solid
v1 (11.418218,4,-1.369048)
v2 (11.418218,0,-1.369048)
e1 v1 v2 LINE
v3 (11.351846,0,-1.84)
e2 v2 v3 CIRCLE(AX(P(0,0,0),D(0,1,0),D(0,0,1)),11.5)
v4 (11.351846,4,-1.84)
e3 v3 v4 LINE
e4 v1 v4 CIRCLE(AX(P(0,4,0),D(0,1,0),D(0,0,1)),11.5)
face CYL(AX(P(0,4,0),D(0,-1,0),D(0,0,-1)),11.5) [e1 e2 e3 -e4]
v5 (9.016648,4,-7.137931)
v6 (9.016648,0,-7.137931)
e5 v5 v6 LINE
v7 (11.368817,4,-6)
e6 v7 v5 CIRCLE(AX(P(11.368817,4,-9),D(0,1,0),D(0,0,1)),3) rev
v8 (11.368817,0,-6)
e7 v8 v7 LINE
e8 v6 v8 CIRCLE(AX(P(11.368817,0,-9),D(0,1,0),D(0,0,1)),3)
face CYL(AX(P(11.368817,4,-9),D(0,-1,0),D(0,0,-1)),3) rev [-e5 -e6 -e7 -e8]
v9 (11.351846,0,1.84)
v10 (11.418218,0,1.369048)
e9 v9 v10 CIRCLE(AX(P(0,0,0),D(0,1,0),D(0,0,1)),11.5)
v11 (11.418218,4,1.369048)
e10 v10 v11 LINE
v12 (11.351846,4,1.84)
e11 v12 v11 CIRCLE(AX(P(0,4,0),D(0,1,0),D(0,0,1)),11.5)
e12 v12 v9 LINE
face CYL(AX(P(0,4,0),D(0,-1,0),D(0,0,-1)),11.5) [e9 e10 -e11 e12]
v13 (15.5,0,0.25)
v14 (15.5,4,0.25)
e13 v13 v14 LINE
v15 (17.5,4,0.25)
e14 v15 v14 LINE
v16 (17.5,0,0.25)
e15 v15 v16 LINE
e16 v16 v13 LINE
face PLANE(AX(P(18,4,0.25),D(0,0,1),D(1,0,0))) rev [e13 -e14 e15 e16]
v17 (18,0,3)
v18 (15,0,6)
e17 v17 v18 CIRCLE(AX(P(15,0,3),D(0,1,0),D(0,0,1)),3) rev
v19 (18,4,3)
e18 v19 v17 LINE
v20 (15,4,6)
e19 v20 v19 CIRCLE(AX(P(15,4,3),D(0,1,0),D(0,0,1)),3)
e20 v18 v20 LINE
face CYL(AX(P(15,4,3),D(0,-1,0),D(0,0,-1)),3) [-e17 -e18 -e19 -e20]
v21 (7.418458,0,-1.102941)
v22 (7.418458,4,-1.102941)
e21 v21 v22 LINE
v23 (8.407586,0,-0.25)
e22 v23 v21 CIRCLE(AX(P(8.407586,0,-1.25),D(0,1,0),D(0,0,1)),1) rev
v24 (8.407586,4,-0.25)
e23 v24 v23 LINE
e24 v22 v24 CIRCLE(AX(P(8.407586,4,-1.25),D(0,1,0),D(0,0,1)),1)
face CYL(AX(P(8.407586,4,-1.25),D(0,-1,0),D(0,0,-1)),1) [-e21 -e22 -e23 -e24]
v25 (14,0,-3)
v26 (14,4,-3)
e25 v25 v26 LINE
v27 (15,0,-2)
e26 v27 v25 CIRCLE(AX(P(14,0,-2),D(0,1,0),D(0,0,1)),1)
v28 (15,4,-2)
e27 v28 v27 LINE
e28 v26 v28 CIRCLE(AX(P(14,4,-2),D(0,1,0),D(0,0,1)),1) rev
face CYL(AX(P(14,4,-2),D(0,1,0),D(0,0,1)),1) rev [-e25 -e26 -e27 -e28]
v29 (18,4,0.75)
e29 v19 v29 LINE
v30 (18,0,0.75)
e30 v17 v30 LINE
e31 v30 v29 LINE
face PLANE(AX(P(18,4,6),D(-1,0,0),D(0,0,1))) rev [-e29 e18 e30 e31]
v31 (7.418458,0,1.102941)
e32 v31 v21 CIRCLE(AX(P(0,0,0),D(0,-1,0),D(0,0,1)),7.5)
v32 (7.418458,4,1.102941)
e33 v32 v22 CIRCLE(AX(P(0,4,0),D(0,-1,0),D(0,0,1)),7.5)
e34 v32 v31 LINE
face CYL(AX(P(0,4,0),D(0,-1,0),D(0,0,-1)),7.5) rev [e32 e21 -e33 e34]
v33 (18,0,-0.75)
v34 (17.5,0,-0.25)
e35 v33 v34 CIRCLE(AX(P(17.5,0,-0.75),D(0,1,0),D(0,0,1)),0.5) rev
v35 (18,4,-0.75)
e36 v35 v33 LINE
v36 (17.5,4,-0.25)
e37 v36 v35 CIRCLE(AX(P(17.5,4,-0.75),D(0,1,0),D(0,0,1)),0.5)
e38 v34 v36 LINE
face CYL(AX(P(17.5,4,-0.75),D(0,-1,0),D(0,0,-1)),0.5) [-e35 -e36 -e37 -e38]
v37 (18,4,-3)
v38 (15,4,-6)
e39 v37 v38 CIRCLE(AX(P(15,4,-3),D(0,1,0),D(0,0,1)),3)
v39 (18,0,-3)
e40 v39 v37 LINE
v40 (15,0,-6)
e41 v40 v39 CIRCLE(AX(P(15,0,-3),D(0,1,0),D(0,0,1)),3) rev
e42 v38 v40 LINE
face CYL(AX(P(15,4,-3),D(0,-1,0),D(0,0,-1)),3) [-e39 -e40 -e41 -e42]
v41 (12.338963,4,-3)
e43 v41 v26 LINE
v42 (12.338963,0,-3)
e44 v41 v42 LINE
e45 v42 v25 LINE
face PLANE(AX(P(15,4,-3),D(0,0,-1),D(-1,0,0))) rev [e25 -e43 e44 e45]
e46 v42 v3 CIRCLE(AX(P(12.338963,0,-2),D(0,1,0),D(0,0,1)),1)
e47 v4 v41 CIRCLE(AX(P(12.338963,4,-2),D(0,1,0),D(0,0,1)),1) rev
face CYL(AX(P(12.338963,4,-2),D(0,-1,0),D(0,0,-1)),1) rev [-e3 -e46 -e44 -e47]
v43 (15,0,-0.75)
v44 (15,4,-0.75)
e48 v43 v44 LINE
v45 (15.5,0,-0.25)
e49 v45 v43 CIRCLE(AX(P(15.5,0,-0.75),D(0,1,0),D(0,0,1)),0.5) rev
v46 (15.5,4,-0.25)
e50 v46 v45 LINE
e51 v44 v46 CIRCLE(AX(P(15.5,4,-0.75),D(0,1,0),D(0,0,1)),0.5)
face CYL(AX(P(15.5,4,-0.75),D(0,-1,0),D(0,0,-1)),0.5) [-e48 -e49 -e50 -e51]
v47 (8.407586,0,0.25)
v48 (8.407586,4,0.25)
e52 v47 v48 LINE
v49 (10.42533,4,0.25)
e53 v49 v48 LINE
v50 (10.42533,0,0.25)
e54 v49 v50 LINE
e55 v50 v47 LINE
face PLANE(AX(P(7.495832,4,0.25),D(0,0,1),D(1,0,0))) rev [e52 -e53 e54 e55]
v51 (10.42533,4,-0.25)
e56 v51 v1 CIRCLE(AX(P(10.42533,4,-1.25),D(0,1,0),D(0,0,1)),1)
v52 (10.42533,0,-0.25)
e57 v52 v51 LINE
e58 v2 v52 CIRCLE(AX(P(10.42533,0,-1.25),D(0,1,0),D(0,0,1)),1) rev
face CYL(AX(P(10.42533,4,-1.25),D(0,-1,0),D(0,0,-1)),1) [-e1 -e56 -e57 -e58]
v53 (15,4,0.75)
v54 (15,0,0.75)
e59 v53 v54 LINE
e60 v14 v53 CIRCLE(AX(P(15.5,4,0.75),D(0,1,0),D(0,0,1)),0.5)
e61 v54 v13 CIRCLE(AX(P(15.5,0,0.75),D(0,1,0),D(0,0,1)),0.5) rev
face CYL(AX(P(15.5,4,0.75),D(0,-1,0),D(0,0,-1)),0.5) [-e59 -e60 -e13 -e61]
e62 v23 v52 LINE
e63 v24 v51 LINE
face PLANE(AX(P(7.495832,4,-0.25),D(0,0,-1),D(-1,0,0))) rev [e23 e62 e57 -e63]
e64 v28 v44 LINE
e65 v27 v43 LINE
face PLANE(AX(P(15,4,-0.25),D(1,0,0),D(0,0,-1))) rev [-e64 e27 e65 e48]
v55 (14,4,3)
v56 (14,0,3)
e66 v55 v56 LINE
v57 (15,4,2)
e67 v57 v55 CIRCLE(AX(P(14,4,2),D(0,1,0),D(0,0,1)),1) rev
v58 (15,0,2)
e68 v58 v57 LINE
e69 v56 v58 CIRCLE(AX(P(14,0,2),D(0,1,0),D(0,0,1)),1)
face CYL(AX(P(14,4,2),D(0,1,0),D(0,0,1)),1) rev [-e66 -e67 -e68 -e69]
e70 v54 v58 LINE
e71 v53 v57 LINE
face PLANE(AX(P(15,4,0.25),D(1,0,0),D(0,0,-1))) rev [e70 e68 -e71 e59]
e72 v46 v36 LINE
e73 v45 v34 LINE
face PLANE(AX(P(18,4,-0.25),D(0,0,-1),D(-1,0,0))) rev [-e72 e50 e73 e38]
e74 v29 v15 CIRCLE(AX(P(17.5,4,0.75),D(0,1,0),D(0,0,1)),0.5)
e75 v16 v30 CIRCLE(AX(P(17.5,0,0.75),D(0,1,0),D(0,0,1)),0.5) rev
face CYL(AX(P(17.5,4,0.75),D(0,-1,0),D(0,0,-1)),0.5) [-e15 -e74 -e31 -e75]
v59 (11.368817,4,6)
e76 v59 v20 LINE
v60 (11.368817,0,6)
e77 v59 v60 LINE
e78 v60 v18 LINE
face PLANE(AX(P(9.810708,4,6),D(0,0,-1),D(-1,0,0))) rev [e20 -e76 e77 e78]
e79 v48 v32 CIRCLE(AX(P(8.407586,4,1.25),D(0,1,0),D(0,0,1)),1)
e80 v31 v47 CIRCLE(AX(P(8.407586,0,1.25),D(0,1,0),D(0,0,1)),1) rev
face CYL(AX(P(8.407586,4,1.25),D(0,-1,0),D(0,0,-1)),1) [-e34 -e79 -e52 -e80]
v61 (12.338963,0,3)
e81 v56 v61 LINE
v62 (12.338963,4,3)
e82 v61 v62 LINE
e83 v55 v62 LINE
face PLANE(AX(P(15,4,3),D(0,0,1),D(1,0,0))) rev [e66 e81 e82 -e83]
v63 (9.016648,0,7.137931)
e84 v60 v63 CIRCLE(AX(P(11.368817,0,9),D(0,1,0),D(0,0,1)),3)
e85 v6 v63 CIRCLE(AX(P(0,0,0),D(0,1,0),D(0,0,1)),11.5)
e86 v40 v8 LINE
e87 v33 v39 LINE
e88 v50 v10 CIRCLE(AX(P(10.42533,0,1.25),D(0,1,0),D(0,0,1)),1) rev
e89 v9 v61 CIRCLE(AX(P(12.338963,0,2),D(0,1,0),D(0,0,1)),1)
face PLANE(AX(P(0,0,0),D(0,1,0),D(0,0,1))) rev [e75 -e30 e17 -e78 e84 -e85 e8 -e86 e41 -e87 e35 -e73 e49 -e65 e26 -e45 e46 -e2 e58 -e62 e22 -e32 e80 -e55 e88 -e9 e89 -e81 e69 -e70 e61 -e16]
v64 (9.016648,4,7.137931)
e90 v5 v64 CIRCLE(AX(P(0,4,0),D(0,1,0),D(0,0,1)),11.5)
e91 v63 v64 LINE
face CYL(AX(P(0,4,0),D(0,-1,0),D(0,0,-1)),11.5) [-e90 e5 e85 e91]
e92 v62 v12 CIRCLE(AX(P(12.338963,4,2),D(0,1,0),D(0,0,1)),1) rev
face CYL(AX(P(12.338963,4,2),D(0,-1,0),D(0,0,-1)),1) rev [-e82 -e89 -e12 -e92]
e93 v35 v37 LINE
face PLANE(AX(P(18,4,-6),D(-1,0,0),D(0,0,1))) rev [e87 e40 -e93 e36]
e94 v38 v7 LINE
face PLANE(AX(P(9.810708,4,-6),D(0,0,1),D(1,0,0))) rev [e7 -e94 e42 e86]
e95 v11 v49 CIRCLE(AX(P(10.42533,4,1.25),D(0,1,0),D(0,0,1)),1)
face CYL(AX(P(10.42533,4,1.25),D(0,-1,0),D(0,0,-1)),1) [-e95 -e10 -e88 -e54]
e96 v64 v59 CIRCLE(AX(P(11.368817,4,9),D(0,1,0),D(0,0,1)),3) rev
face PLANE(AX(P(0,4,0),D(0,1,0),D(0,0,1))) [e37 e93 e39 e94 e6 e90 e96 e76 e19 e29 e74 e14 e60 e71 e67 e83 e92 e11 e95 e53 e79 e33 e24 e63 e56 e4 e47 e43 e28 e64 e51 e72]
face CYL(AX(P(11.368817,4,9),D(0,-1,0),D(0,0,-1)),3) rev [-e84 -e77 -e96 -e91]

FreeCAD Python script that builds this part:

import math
import FreeCAD as App
import Part
import Sketcher

V = App.Vector
Q = App.Units.Quantity


def edges_at(feature, points):
    """Names of the edges that pass closest to the given points."""
    edges = feature.Shape.Edges
    near = lambda p: min(range(len(edges)), key=lambda i: edges[i].distToShape(Part.Vertex(*p))[0])
    return sorted({f"Edge{near(p) + 1}" for p in points})

doc = App.newDocument("Part")
params = doc.addObject("Spreadsheet::Sheet", "Params")
for row, (alias, value) in enumerate([
    ("sketch1_radius", "11.5 mm"),
    ("sketch1_radius2", "7.5 mm"),
    ("sketch1_width", "3 mm"),
    ("sketch1_height", "5.75 mm"),
    ("pad1_length", "4 mm"),
    ("fillet_radius", "1 mm"),
    ("fillet2_radius", "1 mm"),
    ("fillet3_radius", "0.5 mm"),
    ("fillet4_radius", "3 mm"),
], start=1):
    params.set(f"A{row}", alias)
    params.set(f"B{row}", "=" + value)
    params.setAlias(f"B{row}", alias)

body = doc.addObject("PartDesign::Body", "Body")

sketch1 = body.newObject("Sketcher::SketchObject", "Sketch")
sketch1.AttachmentSupport = (doc.getObject("XZ_Plane"), [""])
sketch1.MapMode = "FlatFace"
sketch1.addGeometry([
    Part.LineSegment(V(18, -6, 0), V(9.8, -6, 0)),
    Part.ArcOfCircle(Part.Circle(V(0, 0, 0), V(0, 0, 1), 11.5), math.radians(31), math.radians(329)),
    Part.LineSegment(V(9.8, 6, 0), V(18, 6, 0)),
    Part.LineSegment(V(18, 6, 0), V(18, 0.2, 0)),
    Part.LineSegment(V(18, 0.2, 0), V(15, 0.2, 0)),
    Part.LineSegment(V(15, 0.2, 0), V(15, 3, 0)),
    Part.LineSegment(V(15, 3, 0), V(11.1, 3, 0)),
    Part.ArcOfCircle(Part.Circle(V(0, 0, 0), V(0, 0, 1), 11.5), math.radians(1.25), math.radians(15.12)),
    Part.LineSegment(V(11.5, 0.2, 0), V(7.5, 0.2, 0)),
    Part.ArcOfCircle(Part.Circle(V(0, 0, 0), V(0, 0, 1), 7.5), math.radians(2), math.radians(358)),
    Part.LineSegment(V(7.5, -0.2, 0), V(11.5, -0.2, 0)),
    Part.ArcOfCircle(Part.Circle(V(0, 0, 0), V(0, 0, 1), 11.5), math.radians(-15.12), math.radians(-1.25)),
    Part.LineSegment(V(11.1, -3, 0), V(15, -3, 0)),
    Part.LineSegment(V(15, -3, 0), V(15, -0.2, 0)),
    Part.LineSegment(V(15, -0.2, 0), V(18, -0.2, 0)),
    Part.LineSegment(V(18, -0.2, 0), V(18, -6, 0)),
], False)
sketch1.addConstraint([
    Sketcher.Constraint("Coincident", 0, 2, 1, 2),
    Sketcher.Constraint("Coincident", 1, 1, 2, 1),
    Sketcher.Constraint("Coincident", 2, 2, 3, 1),
    Sketcher.Constraint("Coincident", 3, 2, 4, 1),
    Sketcher.Constraint("Coincident", 4, 2, 5, 1),
    Sketcher.Constraint("Coincident", 5, 2, 6, 1),
    Sketcher.Constraint("Coincident", 6, 2, 7, 2),
    Sketcher.Constraint("Coincident", 7, 1, 8, 1),
    Sketcher.Constraint("Coincident", 8, 2, 9, 1),
    Sketcher.Constraint("Coincident", 9, 2, 10, 1),
    Sketcher.Constraint("Coincident", 10, 2, 11, 2),
    Sketcher.Constraint("Coincident", 11, 1, 12, 1),
    Sketcher.Constraint("Coincident", 12, 2, 13, 1),
    Sketcher.Constraint("Coincident", 13, 2, 14, 1),
    Sketcher.Constraint("Coincident", 14, 2, 15, 1),
    Sketcher.Constraint("Coincident", 15, 2, 0, 1),
    Sketcher.Constraint("Horizontal", 0),
    Sketcher.Constraint("Horizontal", 2),
    Sketcher.Constraint("Vertical", 3),
    Sketcher.Constraint("Horizontal", 4),
    Sketcher.Constraint("Vertical", 5),
    Sketcher.Constraint("Horizontal", 6),
    Sketcher.Constraint("Horizontal", 8),
    Sketcher.Constraint("Horizontal", 10),
    Sketcher.Constraint("Horizontal", 12),
    Sketcher.Constraint("Vertical", 13),
    Sketcher.Constraint("Horizontal", 14),
    Sketcher.Constraint("Vertical", 15),
    Sketcher.Constraint("Coincident", 1, 3, -1, 1),
    Sketcher.Constraint("Coincident", 7, 3, -1, 1),
    Sketcher.Constraint("Coincident", 9, 3, -1, 1),
    Sketcher.Constraint("Coincident", 11, 3, -1, 1),
    Sketcher.Constraint("Equal", 1, 7),
    Sketcher.Constraint("Equal", 7, 11),
    Sketcher.Constraint("Symmetric", 5, 2, 12, 2, -1),
    Sketcher.Constraint("Symmetric", 3, 2, 14, 2, -1),
    Sketcher.Constraint("Horizontal", 4, 2, 7, 1),
    Sketcher.Constraint("Horizontal", 10, 2, 13, 2),
    Sketcher.Constraint("Vertical", 0, 2, 1, 1),
    Sketcher.Constraint("Radius", 1, Q("11.5 mm")),
    Sketcher.Constraint("Radius", 9, Q("7.5 mm")),
    Sketcher.Constraint("DistanceX", 4, 2, 4, 1, Q("3 mm")),
    Sketcher.Constraint("DistanceY", 0, 2, -1, 1, Q("6 mm")),
    Sketcher.Constraint("DistanceX", -1, 1, 2, 2, Q("18 mm")),
    Sketcher.Constraint("DistanceY", -1, 1, 5, 2, Q("3 mm")),
    Sketcher.Constraint("DistanceY", 3, 2, 3, 1, Q("5.75 mm")),
])
sketch1.setExpression("Constraints[39]", "Params.sketch1_radius")
sketch1.setExpression("Constraints[40]", "Params.sketch1_radius2")
sketch1.setExpression("Constraints[41]", "Params.sketch1_width")
sketch1.setExpression("Constraints[45]", "Params.sketch1_height")
pad1 = body.newObject("PartDesign::Pad", "Pad")
pad1.Profile = sketch1
pad1.setExpression("Length", "Params.pad1_length")
pad1.Reversed = True
doc.recompute()

fillet = body.newObject("PartDesign::Fillet", "Fillet")
fillet.Base = (pad1, edges_at(pad1, [
    (11.497, 2, -0.25),
    (7.496, 2, -0.25),
    (7.496, 2, 0.25),
    (11.497, 2, 0.25),
]))
fillet.setExpression("Radius", "Params.fillet_radius")
doc.recompute()

fillet2 = body.newObject("PartDesign::Fillet", "Fillet001")
fillet2.Base = (fillet, edges_at(fillet, [
    (15, 2, -3),
    (11.102, 2, -3),
    (11.102, 2, 3),
    (15, 2, 3),
]))
fillet2.setExpression("Radius", "Params.fillet2_radius")
doc.recompute()

fillet3 = body.newObject("PartDesign::Fillet", "Fillet002")
fillet3.Base = (fillet2, edges_at(fillet2, [
    (18, 2, -0.25),
    (15, 2, -0.25),
    (15, 2, 0.25),
    (18, 2, 0.25),
]))
fillet3.setExpression("Radius", "Params.fillet3_radius")
doc.recompute()

fillet4 = body.newObject("PartDesign::Fillet", "Fillet003")
fillet4.Base = (fillet3, edges_at(fillet3, [
    (9.811, 2, -6),
    (18, 2, -6),
    (18, 2, 6),
    (9.811, 2, 6),
]))
fillet4.setExpression("Radius", "Params.fillet4_radius")

doc.recompute()
